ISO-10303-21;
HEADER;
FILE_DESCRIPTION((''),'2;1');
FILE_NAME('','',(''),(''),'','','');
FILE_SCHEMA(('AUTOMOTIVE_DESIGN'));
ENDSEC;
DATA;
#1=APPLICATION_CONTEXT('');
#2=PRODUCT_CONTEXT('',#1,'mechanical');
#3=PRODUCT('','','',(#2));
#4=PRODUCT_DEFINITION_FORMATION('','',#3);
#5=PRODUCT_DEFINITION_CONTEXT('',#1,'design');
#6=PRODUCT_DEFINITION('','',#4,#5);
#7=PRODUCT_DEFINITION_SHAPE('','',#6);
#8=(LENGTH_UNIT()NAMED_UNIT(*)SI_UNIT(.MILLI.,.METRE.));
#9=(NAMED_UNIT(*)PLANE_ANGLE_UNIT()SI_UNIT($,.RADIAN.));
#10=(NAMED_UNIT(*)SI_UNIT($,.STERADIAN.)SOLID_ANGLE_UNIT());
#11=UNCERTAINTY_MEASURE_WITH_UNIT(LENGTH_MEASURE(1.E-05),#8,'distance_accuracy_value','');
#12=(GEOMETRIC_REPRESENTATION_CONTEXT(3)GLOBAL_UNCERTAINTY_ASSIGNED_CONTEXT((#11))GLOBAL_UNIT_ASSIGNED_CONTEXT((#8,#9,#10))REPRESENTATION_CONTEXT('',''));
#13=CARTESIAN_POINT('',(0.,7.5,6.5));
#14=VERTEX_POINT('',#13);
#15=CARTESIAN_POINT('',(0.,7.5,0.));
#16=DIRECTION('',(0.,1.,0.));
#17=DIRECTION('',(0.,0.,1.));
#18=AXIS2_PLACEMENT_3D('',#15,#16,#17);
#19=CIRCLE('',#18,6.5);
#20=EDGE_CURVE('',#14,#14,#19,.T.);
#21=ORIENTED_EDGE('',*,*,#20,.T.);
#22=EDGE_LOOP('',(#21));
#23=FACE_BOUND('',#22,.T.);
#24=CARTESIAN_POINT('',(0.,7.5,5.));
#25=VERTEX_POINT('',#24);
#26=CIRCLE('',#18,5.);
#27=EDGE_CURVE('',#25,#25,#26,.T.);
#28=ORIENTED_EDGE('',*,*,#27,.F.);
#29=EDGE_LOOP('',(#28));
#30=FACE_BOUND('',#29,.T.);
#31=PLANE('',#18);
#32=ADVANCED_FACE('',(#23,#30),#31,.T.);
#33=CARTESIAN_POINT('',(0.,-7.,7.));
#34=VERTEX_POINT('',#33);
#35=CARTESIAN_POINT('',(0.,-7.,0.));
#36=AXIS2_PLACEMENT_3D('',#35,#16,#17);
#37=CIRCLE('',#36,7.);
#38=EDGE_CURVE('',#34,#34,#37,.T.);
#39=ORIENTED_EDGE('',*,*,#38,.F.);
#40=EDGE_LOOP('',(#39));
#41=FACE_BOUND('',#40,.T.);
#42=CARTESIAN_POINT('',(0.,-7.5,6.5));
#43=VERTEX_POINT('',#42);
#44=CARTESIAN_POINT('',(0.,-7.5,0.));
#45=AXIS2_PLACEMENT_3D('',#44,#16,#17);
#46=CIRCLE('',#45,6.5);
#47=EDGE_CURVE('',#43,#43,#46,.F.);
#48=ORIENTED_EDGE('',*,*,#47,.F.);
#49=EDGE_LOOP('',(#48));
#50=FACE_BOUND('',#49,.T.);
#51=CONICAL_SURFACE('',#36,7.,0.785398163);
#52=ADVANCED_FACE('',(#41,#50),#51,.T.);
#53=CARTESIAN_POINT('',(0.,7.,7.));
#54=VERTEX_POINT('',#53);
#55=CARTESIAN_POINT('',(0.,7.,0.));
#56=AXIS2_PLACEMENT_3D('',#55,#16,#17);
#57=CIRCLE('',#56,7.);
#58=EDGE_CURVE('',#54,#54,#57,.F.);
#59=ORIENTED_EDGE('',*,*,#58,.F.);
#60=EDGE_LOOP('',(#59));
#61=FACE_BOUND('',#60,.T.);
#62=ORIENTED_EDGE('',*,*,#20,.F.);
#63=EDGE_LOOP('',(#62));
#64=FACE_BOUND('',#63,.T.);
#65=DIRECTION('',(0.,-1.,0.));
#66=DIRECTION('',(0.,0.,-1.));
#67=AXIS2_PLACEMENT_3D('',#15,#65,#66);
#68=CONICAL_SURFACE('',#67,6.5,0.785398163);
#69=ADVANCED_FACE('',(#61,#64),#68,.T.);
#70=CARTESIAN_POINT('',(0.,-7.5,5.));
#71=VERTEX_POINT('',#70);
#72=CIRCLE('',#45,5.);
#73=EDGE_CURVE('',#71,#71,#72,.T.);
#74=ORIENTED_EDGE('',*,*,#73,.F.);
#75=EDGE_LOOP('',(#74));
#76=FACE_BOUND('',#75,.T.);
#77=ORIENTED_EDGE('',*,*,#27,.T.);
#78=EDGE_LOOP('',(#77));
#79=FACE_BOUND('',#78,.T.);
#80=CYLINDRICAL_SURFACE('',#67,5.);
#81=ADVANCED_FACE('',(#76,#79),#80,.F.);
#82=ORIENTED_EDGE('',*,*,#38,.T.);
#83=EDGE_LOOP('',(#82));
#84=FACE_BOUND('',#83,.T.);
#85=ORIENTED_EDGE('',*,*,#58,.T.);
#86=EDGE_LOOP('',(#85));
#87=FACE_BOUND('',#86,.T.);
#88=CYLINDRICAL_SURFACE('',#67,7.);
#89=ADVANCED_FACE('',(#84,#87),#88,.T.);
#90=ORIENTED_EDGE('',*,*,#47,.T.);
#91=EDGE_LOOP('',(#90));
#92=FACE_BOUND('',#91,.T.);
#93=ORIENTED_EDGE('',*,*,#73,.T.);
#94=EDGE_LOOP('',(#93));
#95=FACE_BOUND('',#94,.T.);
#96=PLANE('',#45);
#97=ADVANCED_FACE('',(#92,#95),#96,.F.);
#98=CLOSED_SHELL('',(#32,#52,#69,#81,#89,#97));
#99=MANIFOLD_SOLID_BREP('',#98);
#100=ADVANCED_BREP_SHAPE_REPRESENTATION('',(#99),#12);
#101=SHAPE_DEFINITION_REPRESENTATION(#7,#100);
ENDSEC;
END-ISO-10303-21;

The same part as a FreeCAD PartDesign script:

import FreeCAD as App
import Part
import Sketcher

V = App.Vector
Q = App.Units.Quantity


def edges_at(feature, points):
    """Names of the edges that pass closest to the given points."""
    edges = feature.Shape.Edges
    near = lambda p: min(range(len(edges)), key=lambda i: edges[i].distToShape(Part.Vertex(*p))[0])
    return sorted({f"Edge{near(p) + 1}" for p in points})

doc = App.newDocument("Part")
body = doc.addObject("PartDesign::Body", "Body")

# Sketch on XZ plane
sketch1 = doc.addObject("Sketcher::SketchObject", "Sketch")
body.addObject(sketch1)
sketch1.AttachmentSupport = (doc.XZ_Plane, [""])
sketch1.MapMode = "FlatFace"
sketch1.addGeometry([
    Part.Circle(V(0, 0, 0), V(0, 0, 1), 7),
    Part.Circle(V(0, 0, 0), V(0, 0, 1), 5),
], False)
sketch1.addConstraint([
    Sketcher.Constraint("Coincident", 0, 3, -1, 1),
    Sketcher.Constraint("Coincident", 1, 3, -1, 1),
    Sketcher.Constraint("Diameter", 0, Q("14 mm")),
    Sketcher.Constraint("Diameter", 1, Q("10 mm")),
])
pad1 = doc.addObject("PartDesign::Pad", "Pad")
body.addObject(pad1)
pad1.Profile = sketch1
pad1.Length = 15
pad1.Midplane = True
doc.recompute()

chamfer = doc.addObject("PartDesign::Chamfer", "Chamfer")
body.addObject(chamfer)
chamfer.Base = (pad1, edges_at(pad1, [(0, -7.5, -7), (0, 7.5, -7)]))
chamfer.Size = 0.5

doc.recompute()
